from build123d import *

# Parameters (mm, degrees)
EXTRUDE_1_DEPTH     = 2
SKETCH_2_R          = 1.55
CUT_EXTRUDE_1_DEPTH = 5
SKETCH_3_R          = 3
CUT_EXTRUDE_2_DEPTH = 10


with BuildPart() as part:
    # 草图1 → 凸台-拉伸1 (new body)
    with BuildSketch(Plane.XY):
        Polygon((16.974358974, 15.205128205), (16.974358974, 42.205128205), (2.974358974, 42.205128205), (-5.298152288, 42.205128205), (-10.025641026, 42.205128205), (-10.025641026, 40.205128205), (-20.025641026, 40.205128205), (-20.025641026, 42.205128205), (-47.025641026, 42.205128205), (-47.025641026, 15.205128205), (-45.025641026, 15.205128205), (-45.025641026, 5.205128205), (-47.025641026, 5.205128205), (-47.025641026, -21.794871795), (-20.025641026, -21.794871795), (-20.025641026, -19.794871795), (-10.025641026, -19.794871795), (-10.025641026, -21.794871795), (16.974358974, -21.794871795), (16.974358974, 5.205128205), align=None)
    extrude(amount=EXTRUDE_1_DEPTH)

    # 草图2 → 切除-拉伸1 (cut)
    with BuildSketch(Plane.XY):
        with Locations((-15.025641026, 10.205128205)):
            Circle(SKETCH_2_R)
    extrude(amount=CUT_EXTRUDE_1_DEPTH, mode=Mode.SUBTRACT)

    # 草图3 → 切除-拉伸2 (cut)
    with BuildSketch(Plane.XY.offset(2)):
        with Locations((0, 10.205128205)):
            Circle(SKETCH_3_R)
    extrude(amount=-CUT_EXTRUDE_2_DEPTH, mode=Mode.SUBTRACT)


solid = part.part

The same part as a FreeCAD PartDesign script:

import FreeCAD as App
import Part
import Sketcher
from FreeCAD import Vector
Q = App.Units.Quantity


def add_polygon(sketch, points):
    """Adds a closed chain of lines whose ends are joined by coincident constraints."""
    first, n = sketch.GeometryCount, len(points)
    for a, b in zip(points, points[1:] + points[:1]):
        sketch.addGeometry(Part.LineSegment(App.Vector(*a, 0), App.Vector(*b, 0)), False)
    for i in range(n):
        sketch.addConstraint(Sketcher.Constraint("Coincident", first + i, 2, first + (i + 1) % n, 1))

doc = App.newDocument("Part")
params = doc.addObject("Spreadsheet::Sheet", "Params")
for row, (alias, value) in enumerate([
    ("sketch1_width", "27 mm"),
    ("sketch1_width2", "10 mm"),
    ("sketch1_width3", "2 mm"),
    ("pad1_length", "2 mm"),
    ("sketch2_diameter", "3.1 mm"),
    ("pocket1_length", "5 mm"),
    ("sketch3_diameter", "6 mm"),
    ("pocket2_length", "10 mm"),
], start=1):
    params.set(f"A{row}", alias)
    params.set(f"B{row}", "=" + value)
    params.setAlias(f"B{row}", alias)

body = doc.addObject("PartDesign::Body", "Body")

sketch1 = doc.addObject("Sketcher::SketchObject", "Sketch")
body.addObject(sketch1)
sketch1.AttachmentSupport = (doc.XY_Plane, [""])
sketch1.MapMode = "FlatFace"
add_polygon(sketch1, [(17, 42.2), (-10, 42.2), (-10, 40.2), (-20, 40.2), (-20, 42.2), (-47, 42.2), (-47, 15.2), (-45, 15.2), (-45, 5.2), (-47, 5.2), (-47, -21.8), (-20, -21.8), (-20, -19.8), (-10, -19.8), (-10, -21.8), (17, -21.8)])
sketch1.addConstraint([
    Sketcher.Constraint("Horizontal", 0),
    Sketcher.Constraint("Vertical", 1),
    Sketcher.Constraint("Horizontal", 2),
    Sketcher.Constraint("Vertical", 3),
    Sketcher.Constraint("Horizontal", 4),
    Sketcher.Constraint("Vertical", 5),
    Sketcher.Constraint("Horizontal", 6),
    Sketcher.Constraint("Vertical", 7),
    Sketcher.Constraint("Horizontal", 8),
    Sketcher.Constraint("Vertical", 9),
    Sketcher.Constraint("Horizontal", 10),
    Sketcher.Constraint("Vertical", 11),
    Sketcher.Constraint("Horizontal", 12),
    Sketcher.Constraint("Vertical", 13),
    Sketcher.Constraint("Horizontal", 14),
    Sketcher.Constraint("Vertical", 15),
    Sketcher.Constraint("Horizontal", 0, 2, 3, 2),
    Sketcher.Constraint("Horizontal", 10, 2, 13, 2),
    Sketcher.Constraint("Vertical", 5, 2, 8, 2),
    Sketcher.Constraint("Vertical", 3, 2, 10, 2),
    Sketcher.Constraint("Vertical", 1, 2, 12, 2),
    Sketcher.Constraint("Equal", 0, 4),
    Sketcher.Constraint("Equal", 8, 1),
    Sketcher.Constraint("Equal", 14, 5),
    Sketcher.Constraint("Equal", 12, 7),
    Sketcher.Constraint("Equal", 5, 9),
    Sketcher.Constraint("Equal", 3, 11),
    Sketcher.Constraint("DistanceX", 0, 2, 0, 1, Q("27 mm")),
    Sketcher.Constraint("DistanceX", 2, 2, 2, 1, Q("10 mm")),
    Sketcher.Constraint("DistanceX", 6, 1, 6, 2, Q("2 mm")),
    Sketcher.Constraint("DistanceX", 0, 2, -1, 1, Q("10.025641 mm")),
    Sketcher.Constraint("DistanceY", -1, 1, 0, 2, Q("42.205128 mm")),
])
sketch1.setExpression("Constraints[43]", "Params.sketch1_width")
sketch1.setExpression("Constraints[44]", "Params.sketch1_width2")
sketch1.setExpression("Constraints[45]", "Params.sketch1_width3")
pad1 = doc.addObject("PartDesign::Pad", "Pad")
body.addObject(pad1)
pad1.Profile = sketch1
pad1.setExpression("Length", "Params.pad1_length")

sketch2 = doc.addObject("Sketcher::SketchObject", "Sketch001")
body.addObject(sketch2)
sketch2.AttachmentSupport = (doc.XY_Plane, [""])
sketch2.MapMode = "FlatFace"
sketch2.addGeometry(Part.Circle(Vector(-15, 10.2, 0), Vector(0, 0, 1), 1.6), False)
sketch2.addConstraint([
    Sketcher.Constraint("Diameter", 0, Q("3.1 mm")),
    Sketcher.Constraint("DistanceX", 0, 3, -1, 1, Q("15.025641 mm")),
    Sketcher.Constraint("DistanceY", -1, 1, 0, 3, Q("10.205128 mm")),
])
sketch2.setExpression("Constraints[0]", "Params.sketch2_diameter")
pocket1 = doc.addObject("PartDesign::Pocket", "Pocket")
body.addObject(pocket1)
pocket1.Profile = sketch2
pocket1.setExpression("Length", "Params.pocket1_length")
pocket1.Reversed = True

sketch3 = doc.addObject("Sketcher::SketchObject", "Sketch002")
body.addObject(sketch3)
sketch3.AttachmentSupport = (doc.XY_Plane, [""])
sketch3.MapMode = "FlatFace"
sketch3.AttachmentOffset = App.Placement(Vector(0, 0, 2), App.Rotation())
sketch3.addGeometry(Part.Circle(Vector(0, 10.2, 0), Vector(0, 0, 1), 3), False)
sketch3.addConstraint([
    Sketcher.Constraint("PointOnObject", 0, 3, -2),
    Sketcher.Constraint("Diameter", 0, Q("6 mm")),
    Sketcher.Constraint("DistanceY", -1, 1, 0, 3, Q("10.205128 mm")),
])
sketch3.setExpression("Constraints[1]", "Params.sketch3_diameter")
pocket2 = doc.addObject("PartDesign::Pocket", "Pocket001")
body.addObject(pocket2)
pocket2.Profile = sketch3
pocket2.setExpression("Length", "Params.pocket2_length")

doc.recompute()
